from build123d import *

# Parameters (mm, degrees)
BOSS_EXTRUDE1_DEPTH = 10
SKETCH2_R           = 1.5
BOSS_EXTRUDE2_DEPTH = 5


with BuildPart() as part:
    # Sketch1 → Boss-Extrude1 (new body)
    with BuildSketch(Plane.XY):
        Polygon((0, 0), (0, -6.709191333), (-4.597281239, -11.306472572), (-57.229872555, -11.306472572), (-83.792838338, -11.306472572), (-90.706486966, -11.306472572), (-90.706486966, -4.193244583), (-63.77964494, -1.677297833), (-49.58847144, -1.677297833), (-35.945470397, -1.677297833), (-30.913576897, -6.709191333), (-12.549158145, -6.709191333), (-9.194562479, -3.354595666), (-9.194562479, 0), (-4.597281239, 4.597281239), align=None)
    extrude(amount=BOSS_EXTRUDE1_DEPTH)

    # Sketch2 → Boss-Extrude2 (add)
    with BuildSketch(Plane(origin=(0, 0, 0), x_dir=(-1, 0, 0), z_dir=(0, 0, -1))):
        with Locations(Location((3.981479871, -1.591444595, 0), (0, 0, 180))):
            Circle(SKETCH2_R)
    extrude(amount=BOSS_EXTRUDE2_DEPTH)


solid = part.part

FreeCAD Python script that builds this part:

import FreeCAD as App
import Part
import Sketcher
from FreeCAD import Vector
Q = App.Units.Quantity


def add_polygon(sketch, points):
    """Adds a closed chain of lines whose ends are joined by coincident constraints."""
    first, n = sketch.GeometryCount, len(points)
    for a, b in zip(points, points[1:] + points[:1]):
        sketch.addGeometry(Part.LineSegment(App.Vector(*a, 0), App.Vector(*b, 0)), False)
    for i in range(n):
        sketch.addConstraint(Sketcher.Constraint("Coincident", first + i, 2, first + (i + 1) % n, 1))

doc = App.newDocument("Part")
params = doc.addObject("Spreadsheet::Sheet", "Params")
for row, (alias, value) in enumerate([
    ("pad1_length", "10 mm"),
    ("sketch2_diameter", "3 mm"),
    ("pad2_length", "5 mm"),
], start=1):
    params.set(f"A{row}", alias)
    params.set(f"B{row}", "=" + value)
    params.setAlias(f"B{row}", alias)

body = doc.addObject("PartDesign::Body", "Body")

# Sketch on XY plane
sketch1 = body.newObject("Sketcher::SketchObject", "Sketch")
sketch1.AttachmentSupport = (doc.getObject("XY_Plane"), [""])
sketch1.MapMode = "FlatFace"
add_polygon(sketch1, [(0, -6.709191), (0, 0), (-4.597281, 4.597281), (-9.194562, 0), (-9.194562, -3.354596), (-12.549158, -6.709191), (-30.913577, -6.709191), (-35.94547, -1.677298), (-63.779645, -1.677298), (-90.706487, -4.193245), (-90.706487, -11.306473), (-4.597281, -11.306473)])  # lines 0-11
sketch1.addConstraint([
    Sketcher.Constraint("Vertical", 0),
    Sketcher.Constraint("Vertical", 3),
    Sketcher.Constraint("Horizontal", 5),
    Sketcher.Constraint("Horizontal", 7),
    Sketcher.Constraint("Vertical", 9),
    Sketcher.Constraint("Horizontal", 10),
    Sketcher.Constraint("Coincident", 0, 2, -1, 1),
    Sketcher.Constraint("PointOnObject", 2, 2, -1),
    Sketcher.Constraint("Perpendicular", 1, 2),
    Sketcher.Constraint("Parallel", 2, 4),
    Sketcher.Constraint("Perpendicular", 4, 6),
    Sketcher.Constraint("Perpendicular", 6, 11),
    Sketcher.Constraint("Horizontal", 5, 2, 11, 2),
    Sketcher.Constraint("Vertical", 1, 2, 10, 2),
    Sketcher.Constraint("Equal", 1, 2),
    Sketcher.Constraint("DistanceX", 5, 2, 5, 1, Q("18.364419 mm")),
    Sketcher.Constraint("DistanceY", 0, 1, 0, 2, Q("6.709191 mm")),
    Sketcher.Constraint("DistanceX", 7, 2, 7, 1, Q("27.834175 mm")),
    Sketcher.Constraint("DistanceX", 10, 1, 10, 2, Q("86.109206 mm")),
    Sketcher.Constraint("DistanceY", 3, 2, 3, 1, Q("3.354596 mm")),
    Sketcher.Constraint("DistanceY", 9, 2, 9, 1, Q("7.113228 mm")),
    Sketcher.Constraint("DistanceX", 1, 2, -1, 1, Q("4.597281 mm")),
    Sketcher.Constraint("DistanceX", 6, 2, -1, 1, Q("35.94547 mm")),
])
pad1 = body.newObject("PartDesign::Pad", "Pad")
pad1.Profile = sketch1
pad1.setExpression("Length", "Params.pad1_length")

# Sketch on XY plane
sketch2 = body.newObject("Sketcher::SketchObject", "Sketch001")
sketch2.AttachmentSupport = (doc.getObject("XY_Plane"), [""])
sketch2.MapMode = "FlatFace"
sketch2.addGeometry(Part.Circle(Vector(-3.98148, -1.591445, 0), Vector(0, 0, 1), 1.5), False)
sketch2.addConstraint([
    Sketcher.Constraint("Diameter", 0, Q("3 mm")),
    Sketcher.Constraint("DistanceX", 0, 3, -1, 1, Q("3.98148 mm")),
    Sketcher.Constraint("DistanceY", 0, 3, -1, 1, Q("1.591445 mm")),
])
sketch2.setExpression("Constraints[0]", "Params.sketch2_diameter")
pad2 = body.newObject("PartDesign::Pad", "Pad001")
pad2.Profile = sketch2
pad2.setExpression("Length", "Params.pad2_length")
pad2.Reversed = True

doc.recompute()
